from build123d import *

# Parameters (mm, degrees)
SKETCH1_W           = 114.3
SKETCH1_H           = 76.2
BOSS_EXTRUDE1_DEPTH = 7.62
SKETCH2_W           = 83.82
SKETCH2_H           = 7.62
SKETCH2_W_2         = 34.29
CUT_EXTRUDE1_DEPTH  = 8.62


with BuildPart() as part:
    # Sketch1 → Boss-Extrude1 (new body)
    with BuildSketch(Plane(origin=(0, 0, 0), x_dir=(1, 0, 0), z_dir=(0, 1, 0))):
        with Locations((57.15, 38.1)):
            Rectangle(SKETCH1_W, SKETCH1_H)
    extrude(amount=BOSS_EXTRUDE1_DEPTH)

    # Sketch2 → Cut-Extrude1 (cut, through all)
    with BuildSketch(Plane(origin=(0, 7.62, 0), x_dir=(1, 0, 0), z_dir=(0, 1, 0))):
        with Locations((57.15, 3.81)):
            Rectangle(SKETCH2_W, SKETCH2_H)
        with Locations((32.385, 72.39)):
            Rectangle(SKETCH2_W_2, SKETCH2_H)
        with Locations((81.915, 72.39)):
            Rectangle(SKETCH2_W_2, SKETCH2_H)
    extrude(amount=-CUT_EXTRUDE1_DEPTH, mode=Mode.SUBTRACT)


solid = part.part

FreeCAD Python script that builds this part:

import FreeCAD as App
import Part
import Sketcher
Q = App.Units.Quantity

doc = App.newDocument("Part")
body = doc.addObject("PartDesign::Body", "Body")

# Sketch on XZ plane
sketch1 = doc.addObject("Sketcher::SketchObject", "Sketch")
body.addObject(sketch1)
sketch1.AttachmentSupport = (doc.XZ_Plane, [""])
sketch1.MapMode = "FlatFace"
sketch1.addGeometry([
    Part.LineSegment(App.Vector(0, -76, 0), App.Vector(0, 0, 0)),
    Part.LineSegment(App.Vector(0, 0, 0), App.Vector(114, 0, 0)),
    Part.LineSegment(App.Vector(114, 0, 0), App.Vector(114, -76, 0)),
    Part.LineSegment(App.Vector(114, -76, 0), App.Vector(0, -76, 0)),
], False)
sketch1.addConstraint([
    Sketcher.Constraint("Coincident", 0, 2, 1, 1),
    Sketcher.Constraint("Coincident", 1, 2, 2, 1),
    Sketcher.Constraint("Coincident", 2, 2, 3, 1),
    Sketcher.Constraint("Coincident", 3, 2, 0, 1),
    Sketcher.Constraint("Vertical", 0),
    Sketcher.Constraint("Horizontal", 1),
    Sketcher.Constraint("Vertical", 2),
    Sketcher.Constraint("Horizontal", 3),
    Sketcher.Constraint("Coincident", 0, 2, -1, 1),
    Sketcher.Constraint("DistanceY", 0, 1, 0, 2, Q("3 in")),
    Sketcher.Constraint("DistanceX", 1, 1, 1, 2, Q("4.5 in")),
])
pad1 = doc.addObject("PartDesign::Pad", "Pad")
body.addObject(pad1)
pad1.Profile = sketch1
pad1.Length = Q("0.3 in")
pad1.Reversed = True

# Sketch on XZ plane
sketch2 = doc.addObject("Sketcher::SketchObject", "Sketch001")
body.addObject(sketch2)
sketch2.AttachmentSupport = (doc.XZ_Plane, [""])
sketch2.MapMode = "FlatFace"
sketch2.AttachmentOffset = App.Placement(App.Vector(0, 0, -0.3 * 25.4), App.Rotation())
sketch2.addGeometry([
    Part.LineSegment(App.Vector(15, -8, 0), App.Vector(15, 0, 0)),  # 0
    Part.LineSegment(App.Vector(15, 0, 0), App.Vector(99, 0, 0)),  # 1
    Part.LineSegment(App.Vector(99, 0, 0), App.Vector(99, -8, 0)),  # 2
    Part.LineSegment(App.Vector(99, -8, 0), App.Vector(15, -8, 0)),  # 3
    Part.LineSegment(App.Vector(15, -76, 0), App.Vector(15, -69, 0)),  # 4
    Part.LineSegment(App.Vector(15, -69, 0), App.Vector(50, -69, 0)),  # 5
    Part.LineSegment(App.Vector(50, -69, 0), App.Vector(50, -76, 0)),  # 6
    Part.LineSegment(App.Vector(50, -76, 0), App.Vector(15, -76, 0)),  # 7
    Part.LineSegment(App.Vector(65, -76, 0), App.Vector(65, -69, 0)),  # 8
    Part.LineSegment(App.Vector(65, -69, 0), App.Vector(99, -69, 0)),  # 9
    Part.LineSegment(App.Vector(99, -69, 0), App.Vector(99, -76, 0)),  # 10
    Part.LineSegment(App.Vector(99, -76, 0), App.Vector(65, -76, 0)),  # 11
], False)
sketch2.addConstraint([
    Sketcher.Constraint("Coincident", 0, 2, 1, 1),
    Sketcher.Constraint("Coincident", 1, 2, 2, 1),
    Sketcher.Constraint("Coincident", 2, 2, 3, 1),
    Sketcher.Constraint("Coincident", 3, 2, 0, 1),
    Sketcher.Constraint("Coincident", 4, 2, 5, 1),
    Sketcher.Constraint("Coincident", 5, 2, 6, 1),
    Sketcher.Constraint("Coincident", 6, 2, 7, 1),
    Sketcher.Constraint("Coincident", 7, 2, 4, 1),
    Sketcher.Constraint("Coincident", 8, 2, 9, 1),
    Sketcher.Constraint("Coincident", 9, 2, 10, 1),
    Sketcher.Constraint("Coincident", 10, 2, 11, 1),
    Sketcher.Constraint("Coincident", 11, 2, 8, 1),
    Sketcher.Constraint("Vertical", 0),
    Sketcher.Constraint("Horizontal", 1),
    Sketcher.Constraint("Vertical", 2),
    Sketcher.Constraint("Horizontal", 3),
    Sketcher.Constraint("Vertical", 4),
    Sketcher.Constraint("Horizontal", 5),
    Sketcher.Constraint("Vertical", 6),
    Sketcher.Constraint("Horizontal", 7),
    Sketcher.Constraint("Vertical", 8),
    Sketcher.Constraint("Horizontal", 9),
    Sketcher.Constraint("Vertical", 10),
    Sketcher.Constraint("Horizontal", 11),
    Sketcher.Constraint("PointOnObject", 0, 2, -1),
    Sketcher.Constraint("Horizontal", 5, 2, 8, 2),
    Sketcher.Constraint("Horizontal", 7, 2, 10, 2),
    Sketcher.Constraint("Vertical", 3, 2, 4, 2),
    Sketcher.Constraint("Vertical", 2, 2, 9, 2),
    Sketcher.Constraint("Equal", 7, 9),
    Sketcher.Constraint("Equal", 2, 4),
    Sketcher.Constraint("DistanceX", 1, 1, 1, 2, Q("3.3 in")),
    Sketcher.Constraint("DistanceY", 0, 1, 0, 2, Q("0.3 in")),
    Sketcher.Constraint("DistanceY", 6, 2, -1, 1, Q("3 in")),
    Sketcher.Constraint("DistanceX", 5, 1, 5, 2, Q("1.35 in")),
    Sketcher.Constraint("DistanceX", -1, 1, 0, 2, Q("0.6 in")),
])
pocket1 = doc.addObject("PartDesign::Pocket", "Pocket")
body.addObject(pocket1)
pocket1.Profile = sketch2
pocket1.Type = "ThroughAll"
pocket1.Reversed = True

doc.recompute()
